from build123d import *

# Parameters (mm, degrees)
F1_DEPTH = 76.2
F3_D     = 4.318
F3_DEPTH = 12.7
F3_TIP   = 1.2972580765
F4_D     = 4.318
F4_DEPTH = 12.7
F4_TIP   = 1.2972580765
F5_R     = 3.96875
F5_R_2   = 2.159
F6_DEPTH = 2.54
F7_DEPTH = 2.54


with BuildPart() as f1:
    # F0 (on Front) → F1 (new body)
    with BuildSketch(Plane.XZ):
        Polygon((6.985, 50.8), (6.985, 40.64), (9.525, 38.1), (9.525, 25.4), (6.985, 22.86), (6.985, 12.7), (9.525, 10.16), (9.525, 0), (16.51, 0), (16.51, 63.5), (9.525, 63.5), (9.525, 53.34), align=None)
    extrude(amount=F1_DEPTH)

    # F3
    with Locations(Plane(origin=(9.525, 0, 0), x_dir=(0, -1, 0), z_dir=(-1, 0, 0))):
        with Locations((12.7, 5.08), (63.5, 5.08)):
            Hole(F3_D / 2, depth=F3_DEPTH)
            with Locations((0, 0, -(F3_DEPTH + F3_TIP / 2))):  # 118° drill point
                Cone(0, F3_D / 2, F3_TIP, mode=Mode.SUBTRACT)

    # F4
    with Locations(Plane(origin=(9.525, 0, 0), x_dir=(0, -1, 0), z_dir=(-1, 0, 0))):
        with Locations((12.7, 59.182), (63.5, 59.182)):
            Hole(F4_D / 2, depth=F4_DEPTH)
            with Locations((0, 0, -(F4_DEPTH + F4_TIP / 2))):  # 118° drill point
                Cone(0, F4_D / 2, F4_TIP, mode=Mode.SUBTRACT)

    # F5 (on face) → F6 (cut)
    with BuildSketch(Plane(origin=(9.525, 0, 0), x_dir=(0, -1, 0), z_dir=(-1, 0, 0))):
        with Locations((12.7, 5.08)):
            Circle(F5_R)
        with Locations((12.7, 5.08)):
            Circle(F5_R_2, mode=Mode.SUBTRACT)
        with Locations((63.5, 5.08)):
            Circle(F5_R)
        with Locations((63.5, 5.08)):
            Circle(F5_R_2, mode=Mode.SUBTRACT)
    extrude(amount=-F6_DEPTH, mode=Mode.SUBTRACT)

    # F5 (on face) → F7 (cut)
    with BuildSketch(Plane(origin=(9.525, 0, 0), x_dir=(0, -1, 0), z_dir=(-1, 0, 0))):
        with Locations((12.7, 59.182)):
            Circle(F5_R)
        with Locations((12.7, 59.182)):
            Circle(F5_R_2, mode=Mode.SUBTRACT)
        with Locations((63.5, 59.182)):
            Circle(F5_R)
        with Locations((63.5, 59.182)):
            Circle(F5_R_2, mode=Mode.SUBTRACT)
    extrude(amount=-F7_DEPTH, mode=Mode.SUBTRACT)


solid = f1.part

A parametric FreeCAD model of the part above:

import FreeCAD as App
import Part
import Sketcher
Q = App.Units.Quantity


def add_polygon(sketch, points):
    """Adds a closed chain of lines whose ends are joined by coincident constraints."""
    first, n = sketch.GeometryCount, len(points)
    for a, b in zip(points, points[1:] + points[:1]):
        sketch.addGeometry(Part.LineSegment(App.Vector(*a, 0), App.Vector(*b, 0)), False)
    for i in range(n):
        sketch.addConstraint(Sketcher.Constraint("Coincident", first + i, 2, first + (i + 1) % n, 1))

doc = App.newDocument("Part")
body = doc.addObject("PartDesign::Body", "Body")

# Sketch on XZ plane
sketch1 = body.newObject("Sketcher::SketchObject", "Sketch")
sketch1.AttachmentSupport = (doc.getObject("XZ_Plane"), [""])
sketch1.MapMode = "FlatFace"
add_polygon(sketch1, [(6.985, 50.8), (6.985, 40.64), (9.525, 38.1), (9.525, 25.4), (6.985, 22.86), (6.985, 12.7), (9.525, 10.16), (9.525, 0), (16.51, 0), (16.51, 63.5), (9.525, 63.5), (9.525, 53.34)])  # lines 0-11
sketch1.addConstraint([
    Sketcher.Constraint("Vertical", 0),
    Sketcher.Constraint("Vertical", 2),
    Sketcher.Constraint("Vertical", 4),
    Sketcher.Constraint("Vertical", 6),
    Sketcher.Constraint("Horizontal", 7),
    Sketcher.Constraint("Vertical", 8),
    Sketcher.Constraint("Horizontal", 9),
    Sketcher.Constraint("Vertical", 10),
    Sketcher.Constraint("PointOnObject", 6, 2, -1),
    Sketcher.Constraint("Perpendicular", 1, 3),
    Sketcher.Constraint("Perpendicular", 3, 5),
    Sketcher.Constraint("Perpendicular", 5, 11),
    Sketcher.Constraint("Vertical", 0, 2, 3, 2),
    Sketcher.Constraint("Vertical", 2, 2, 5, 2),
    Sketcher.Constraint("Vertical", 6, 2, 9, 2),
    Sketcher.Constraint("Equal", 0, 4),
    Sketcher.Constraint("Equal", 4, 6),
    Sketcher.Constraint("Equal", 6, 10),
    Sketcher.Constraint("Equal", 1, 3),
    Sketcher.Constraint("DistanceY", 0, 2, 0, 1, Q("0.4 in")),
    Sketcher.Constraint("DistanceY", 2, 2, 2, 1, Q("0.5 in")),
    Sketcher.Constraint("DistanceY", 8, 1, 8, 2, Q("2.5 in")),
    Sketcher.Constraint("DistanceX", 7, 1, 7, 2, Q("0.275 in")),
    Sketcher.Constraint("DistanceX", -1, 1, 7, 2, Q("0.65 in")),
])
pad1 = body.newObject("PartDesign::Pad", "Pad")
pad1.Profile = sketch1
pad1.Length = Q("3 in")

# Sketch on YZ plane
sketch2 = body.newObject("Sketcher::SketchObject", "Sketch001")
sketch2.AttachmentSupport = (doc.getObject("YZ_Plane"), [""])
sketch2.MapMode = "FlatFace"
sketch2.AttachmentOffset = App.Placement(App.Vector(0, 0, 0.375 * 25.4), App.Rotation())
sketch2.addGeometry([
    Part.Circle(App.Vector(-12.7, 5.08, 0), App.Vector(0, 0, 1), 2.159),
    Part.Circle(App.Vector(-63.5, 5.08, 0), App.Vector(0, 0, 1), 2.159),
], False)
sketch2.addConstraint([
    Sketcher.Constraint("Equal", 0, 1),
    Sketcher.Constraint("Horizontal", 0, 3, 1, 3),
    Sketcher.Constraint("Diameter", 0, Q("0.17 in")),
    Sketcher.Constraint("DistanceX", 1, 3, 0, 3, Q("2 in")),
    Sketcher.Constraint("DistanceX", 0, 3, -1, 1, Q("0.5 in")),
    Sketcher.Constraint("DistanceY", -1, 1, 0, 3, Q("0.2 in")),
])
doc.recompute()
hole = body.newObject("PartDesign::Hole", "Hole")
hole.Profile = sketch2
hole.ThreadType = "None"
hole.Diameter = Q("0.17 in")
hole.DepthType = "Dimension"
hole.Depth = Q("0.5 in")
hole.DrillPoint = "Angled"
hole.DrillPointAngle = 118
hole.Reversed = True

# Sketch on YZ plane
sketch3 = body.newObject("Sketcher::SketchObject", "Sketch002")
sketch3.AttachmentSupport = (doc.getObject("YZ_Plane"), [""])
sketch3.MapMode = "FlatFace"
sketch3.AttachmentOffset = App.Placement(App.Vector(0, 0, 0.375 * 25.4), App.Rotation())
sketch3.addGeometry([
    Part.Circle(App.Vector(-12.7, 59.182, 0), App.Vector(0, 0, 1), 2.159),
    Part.Circle(App.Vector(-63.5, 59.182, 0), App.Vector(0, 0, 1), 2.159),
], False)
sketch3.addConstraint([
    Sketcher.Constraint("Equal", 0, 1),
    Sketcher.Constraint("Horizontal", 0, 3, 1, 3),
    Sketcher.Constraint("Diameter", 0, Q("0.17 in")),
    Sketcher.Constraint("DistanceX", 1, 3, 0, 3, Q("2 in")),
    Sketcher.Constraint("DistanceX", 0, 3, -1, 1, Q("0.5 in")),
    Sketcher.Constraint("DistanceY", -1, 1, 0, 3, Q("2.33 in")),
])
doc.recompute()
hole2 = body.newObject("PartDesign::Hole", "Hole001")
hole2.Profile = sketch3
hole2.ThreadType = "None"
hole2.Diameter = Q("0.17 in")
hole2.DepthType = "Dimension"
hole2.Depth = Q("0.5 in")
hole2.DrillPoint = "Angled"
hole2.DrillPointAngle = 118
hole2.Reversed = True

# Sketch on YZ plane
sketch4 = body.newObject("Sketcher::SketchObject", "Sketch003")
sketch4.AttachmentSupport = (doc.getObject("YZ_Plane"), [""])
sketch4.MapMode = "FlatFace"
sketch4.AttachmentOffset = App.Placement(App.Vector(0, 0, 0.375 * 25.4), App.Rotation())
sketch4.addGeometry([
    Part.Circle(App.Vector(-12.7, 5.08, 0), App.Vector(0, 0, 1), 3.96875),
    Part.Circle(App.Vector(-12.7, 5.08, 0), App.Vector(0, 0, 1), 2.159),
    Part.Circle(App.Vector(-63.5, 5.08, 0), App.Vector(0, 0, 1), 3.96875),
    Part.Circle(App.Vector(-63.5, 5.08, 0), App.Vector(0, 0, 1), 2.159),
], False)
sketch4.addConstraint([
    Sketcher.Constraint("Coincident", 1, 3, 0, 3),
    Sketcher.Constraint("Coincident", 3, 3, 2, 3),
    Sketcher.Constraint("Equal", 0, 2),
    Sketcher.Constraint("Equal", 1, 3),
    Sketcher.Constraint("Horizontal", 1, 3, 2, 3),
    Sketcher.Constraint("Diameter", 1, Q("0.17 in")),
    Sketcher.Constraint("Diameter", 0, Q("0.3125 in")),
    Sketcher.Constraint("DistanceX", 2, 3, 0, 3, Q("2 in")),
    Sketcher.Constraint("DistanceX", 0, 3, -1, 1, Q("0.5 in")),
    Sketcher.Constraint("DistanceY", -1, 1, 0, 3, Q("0.2 in")),
])
pocket1 = body.newObject("PartDesign::Pocket", "Pocket")
pocket1.Profile = sketch4
pocket1.Length = Q("0.1 in")
pocket1.Reversed = True

# Sketch on YZ plane
sketch5 = body.newObject("Sketcher::SketchObject", "Sketch004")
sketch5.AttachmentSupport = (doc.getObject("YZ_Plane"), [""])
sketch5.MapMode = "FlatFace"
sketch5.AttachmentOffset = App.Placement(App.Vector(0, 0, 0.375 * 25.4), App.Rotation())
sketch5.addGeometry([
    Part.Circle(App.Vector(-12.7, 59.182, 0), App.Vector(0, 0, 1), 3.96875),
    Part.Circle(App.Vector(-12.7, 59.182, 0), App.Vector(0, 0, 1), 2.159),
    Part.Circle(App.Vector(-63.5, 59.182, 0), App.Vector(0, 0, 1), 3.96875),
    Part.Circle(App.Vector(-63.5, 59.182, 0), App.Vector(0, 0, 1), 2.159),
], False)
sketch5.addConstraint([
    Sketcher.Constraint("Coincident", 1, 3, 0, 3),
    Sketcher.Constraint("Coincident", 3, 3, 2, 3),
    Sketcher.Constraint("Equal", 0, 2),
    Sketcher.Constraint("Equal", 1, 3),
    Sketcher.Constraint("Horizontal", 1, 3, 2, 3),
    Sketcher.Constraint("Diameter", 1, Q("0.17 in")),
    Sketcher.Constraint("Diameter", 0, Q("0.3125 in")),
    Sketcher.Constraint("DistanceX", 2, 3, 0, 3, Q("2 in")),
    Sketcher.Constraint("DistanceX", 0, 3, -1, 1, Q("0.5 in")),
    Sketcher.Constraint("DistanceY", -1, 1, 0, 3, Q("2.33 in")),
])
pocket2 = body.newObject("PartDesign::Pocket", "Pocket001")
pocket2.Profile = sketch5
pocket2.Length = Q("0.1 in")
pocket2.Reversed = True

doc.recompute()
